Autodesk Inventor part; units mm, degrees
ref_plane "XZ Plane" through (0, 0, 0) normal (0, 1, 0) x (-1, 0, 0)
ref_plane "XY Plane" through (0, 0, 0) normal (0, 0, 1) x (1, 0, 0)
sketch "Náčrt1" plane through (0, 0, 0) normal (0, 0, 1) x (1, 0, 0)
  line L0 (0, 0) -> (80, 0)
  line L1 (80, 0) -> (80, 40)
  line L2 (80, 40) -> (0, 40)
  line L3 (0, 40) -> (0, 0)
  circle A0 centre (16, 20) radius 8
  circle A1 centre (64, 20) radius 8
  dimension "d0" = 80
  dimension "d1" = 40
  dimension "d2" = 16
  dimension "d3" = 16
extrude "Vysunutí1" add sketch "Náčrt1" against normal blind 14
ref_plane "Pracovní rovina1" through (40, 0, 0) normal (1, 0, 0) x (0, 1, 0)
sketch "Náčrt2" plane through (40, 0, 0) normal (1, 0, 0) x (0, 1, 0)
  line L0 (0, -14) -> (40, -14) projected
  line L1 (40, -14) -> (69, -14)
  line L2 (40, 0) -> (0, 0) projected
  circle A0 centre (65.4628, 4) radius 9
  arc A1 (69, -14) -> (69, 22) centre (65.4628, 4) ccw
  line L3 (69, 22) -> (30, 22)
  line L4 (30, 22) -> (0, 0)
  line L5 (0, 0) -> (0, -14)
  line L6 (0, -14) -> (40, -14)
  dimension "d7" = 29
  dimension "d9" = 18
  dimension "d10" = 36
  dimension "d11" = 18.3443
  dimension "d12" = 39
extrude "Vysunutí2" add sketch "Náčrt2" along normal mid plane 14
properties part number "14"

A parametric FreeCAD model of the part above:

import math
import FreeCAD as App
import Part
import Sketcher


def add_polygon(sketch, points):
    """Adds a closed chain of lines whose ends are joined by coincident constraints."""
    first, n = sketch.GeometryCount, len(points)
    for a, b in zip(points, points[1:] + points[:1]):
        sketch.addGeometry(Part.LineSegment(App.Vector(*a, 0), App.Vector(*b, 0)), False)
    for i in range(n):
        sketch.addConstraint(Sketcher.Constraint("Coincident", first + i, 2, first + (i + 1) % n, 1))

doc = App.newDocument("Part")
body = doc.addObject("PartDesign::Body", "Body")

# Sketch on XY plane
sketch1 = body.newObject("Sketcher::SketchObject", "Sketch")
sketch1.AttachmentSupport = (doc.getObject("XY_Plane"), [""])
sketch1.MapMode = "FlatFace"
add_polygon(sketch1, [(0, 40), (0, 0), (80, 0), (80, 40)])  # lines 0-3
sketch1.addGeometry(Part.Circle(App.Vector(16, 20, 0), App.Vector(0, 0, 1), 8), False)  # 4
sketch1.addGeometry(Part.Circle(App.Vector(64, 20, 0), App.Vector(0, 0, 1), 8), False)  # 5
sketch1.addConstraint(Sketcher.Constraint("Vertical", 0))
sketch1.addConstraint(Sketcher.Constraint("Horizontal", 1))
sketch1.addConstraint(Sketcher.Constraint("Vertical", 2))
sketch1.addConstraint(Sketcher.Constraint("Horizontal", 3))
sketch1.addConstraint(Sketcher.Constraint("Coincident", 0, 2, -1, 1))
sketch1.addConstraint(Sketcher.Constraint("Equal", 4, 5))
sketch1.addConstraint(Sketcher.Constraint("Horizontal", 4, 3, 5, 3))
sketch1.addConstraint(Sketcher.Constraint("Diameter", 4, 16.0))
sketch1.addConstraint(Sketcher.Constraint("DistanceX", 1, 1, 1, 2, 80.0))
sketch1.addConstraint(Sketcher.Constraint("DistanceY", 0, 2, 0, 1, 40.0))
sketch1.addConstraint(Sketcher.Constraint("DistanceX", -1, 1, 4, 3, 16.0))
sketch1.addConstraint(Sketcher.Constraint("DistanceX", 5, 3, 1, 2, 16.0))
sketch1.addConstraint(Sketcher.Constraint("DistanceY", -1, 1, 4, 3, 20.0))
pad1 = body.newObject("PartDesign::Pad", "Pad")
pad1.Profile = sketch1
pad1.Length = 14
pad1.Reversed = True

# Sketch on YZ plane
sketch2 = body.newObject("Sketcher::SketchObject", "Sketch001")
sketch2.AttachmentSupport = (doc.getObject("YZ_Plane"), [""])
sketch2.MapMode = "FlatFace"
sketch2.AttachmentOffset = App.Placement(App.Vector(0, 0, 40), App.Rotation())
sketch2.addGeometry(Part.LineSegment(App.Vector(0, 0, 0), App.Vector(0, -14, 0)), False)
sketch2.addGeometry(Part.LineSegment(App.Vector(0, -14, 0), App.Vector(69, -14, 0)), False)
sketch2.addGeometry(Part.ArcOfCircle(Part.Circle(App.Vector(65, 4, 0), App.Vector(0, 0, 1), 18), math.radians(-79), math.radians(79)), False)
sketch2.addGeometry(Part.LineSegment(App.Vector(69, 22, 0), App.Vector(30, 22, 0)), False)
sketch2.addGeometry(Part.LineSegment(App.Vector(30, 22, 0), App.Vector(0, 0, 0)), False)
sketch2.addGeometry(Part.Circle(App.Vector(65, 4, 0), App.Vector(0, 0, 1), 9), False)
sketch2.addConstraint(Sketcher.Constraint("Coincident", 0, 2, 1, 1))
sketch2.addConstraint(Sketcher.Constraint("Coincident", 1, 2, 2, 1))
sketch2.addConstraint(Sketcher.Constraint("Coincident", 2, 2, 3, 1))
sketch2.addConstraint(Sketcher.Constraint("Coincident", 3, 2, 4, 1))
sketch2.addConstraint(Sketcher.Constraint("Coincident", 4, 2, 0, 1))
sketch2.addConstraint(Sketcher.Constraint("Vertical", 0))
sketch2.addConstraint(Sketcher.Constraint("Horizontal", 1))
sketch2.addConstraint(Sketcher.Constraint("Horizontal", 3))
sketch2.addConstraint(Sketcher.Constraint("Coincident", 4, 2, -1, 1))
sketch2.addConstraint(Sketcher.Constraint("Coincident", 5, 3, 2, 3))
sketch2.addConstraint(Sketcher.Constraint("Vertical", 1, 2, 2, 2))
sketch2.addConstraint(Sketcher.Constraint("Diameter", 5, 18.0))
sketch2.addConstraint(Sketcher.Constraint("DistanceX", 3, 2, 3, 1, 39.0))
sketch2.addConstraint(Sketcher.Constraint("DistanceY", 0, 2, 2, 3, 18.0))
sketch2.addConstraint(Sketcher.Constraint("Radius", 2, 18.3443))
sketch2.addConstraint(Sketcher.Constraint("DistanceX", 1, 1, 1, 2, 69.0))
sketch2.addConstraint(Sketcher.Constraint("DistanceY", 0, 2, 0, 1, 14.0))
pad2 = body.newObject("PartDesign::Pad", "Pad001")
pad2.Profile = sketch2
pad2.Length = 14
pad2.Midplane = True

doc.recompute()
